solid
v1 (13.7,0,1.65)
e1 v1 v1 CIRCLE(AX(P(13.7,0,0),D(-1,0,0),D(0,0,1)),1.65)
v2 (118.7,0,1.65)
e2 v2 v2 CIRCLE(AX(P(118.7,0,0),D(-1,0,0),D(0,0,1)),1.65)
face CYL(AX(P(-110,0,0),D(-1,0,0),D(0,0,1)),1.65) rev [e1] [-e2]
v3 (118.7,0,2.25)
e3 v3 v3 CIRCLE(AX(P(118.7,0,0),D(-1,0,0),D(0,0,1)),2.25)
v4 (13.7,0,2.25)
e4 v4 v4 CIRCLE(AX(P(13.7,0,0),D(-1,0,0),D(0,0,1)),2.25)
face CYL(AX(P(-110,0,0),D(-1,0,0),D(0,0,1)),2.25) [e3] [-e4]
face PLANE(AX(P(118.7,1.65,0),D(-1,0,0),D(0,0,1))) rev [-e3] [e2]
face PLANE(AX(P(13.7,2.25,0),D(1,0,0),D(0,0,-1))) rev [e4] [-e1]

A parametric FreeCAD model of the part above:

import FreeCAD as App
import Part
import Sketcher


def add_polygon(sketch, points):
    """Adds a closed chain of lines whose ends are joined by coincident constraints."""
    first, n = sketch.GeometryCount, len(points)
    for a, b in zip(points, points[1:] + points[:1]):
        sketch.addGeometry(Part.LineSegment(App.Vector(*a, 0), App.Vector(*b, 0)), False)
    for i in range(n):
        sketch.addConstraint(Sketcher.Constraint("Coincident", first + i, 2, first + (i + 1) % n, 1))

doc = App.newDocument("Part")
body = doc.addObject("PartDesign::Body", "Body")

sketch1 = body.newObject("Sketcher::SketchObject", "Sketch")
sketch1.AttachmentSupport = (doc.getObject("XY_Plane"), [""])
sketch1.MapMode = "FlatFace"
add_polygon(sketch1, [(13.7, 2.25), (13.7, 1.65), (118.7, 1.65), (118.7, 2.25)])
sketch1.addConstraint([
    Sketcher.Constraint("Vertical", 0),
    Sketcher.Constraint("Horizontal", 1),
    Sketcher.Constraint("Vertical", 2),
    Sketcher.Constraint("Horizontal", 3),
    Sketcher.Constraint("DistanceX", 1, 1, 1, 2, 105.0),
    Sketcher.Constraint("DistanceY", 0, 2, 0, 1, 0.6),
    Sketcher.Constraint("DistanceX", -1, 1, 0, 2, 13.7),
    Sketcher.Constraint("DistanceY", -1, 1, 0, 2, 1.65),
])
revolution = body.newObject("PartDesign::Revolution", "Revolution")
revolution.Profile = sketch1
revolution.ReferenceAxis = (sketch1, ["H_Axis"])
revolution.Angle = 360

doc.recompute()
